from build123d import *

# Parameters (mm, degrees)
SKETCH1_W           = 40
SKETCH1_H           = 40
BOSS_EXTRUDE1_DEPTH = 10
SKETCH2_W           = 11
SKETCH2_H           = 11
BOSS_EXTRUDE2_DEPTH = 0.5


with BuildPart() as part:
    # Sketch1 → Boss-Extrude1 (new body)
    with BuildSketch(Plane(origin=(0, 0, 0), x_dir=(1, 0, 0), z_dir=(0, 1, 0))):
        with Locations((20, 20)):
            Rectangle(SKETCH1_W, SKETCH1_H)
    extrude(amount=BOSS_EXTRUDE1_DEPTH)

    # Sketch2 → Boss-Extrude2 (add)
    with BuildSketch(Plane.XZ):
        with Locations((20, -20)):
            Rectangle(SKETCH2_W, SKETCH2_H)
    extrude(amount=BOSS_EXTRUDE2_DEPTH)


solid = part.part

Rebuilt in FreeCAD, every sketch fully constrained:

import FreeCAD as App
import Part
import Sketcher
Q = App.Units.Quantity

doc = App.newDocument("Part")
body = doc.addObject("PartDesign::Body", "Body")

sketch1 = doc.addObject("Sketcher::SketchObject", "Sketch")
body.addObject(sketch1)
sketch1.AttachmentSupport = (doc.XZ_Plane, [""])
sketch1.MapMode = "FlatFace"
sketch1.addGeometry(Part.LineSegment(App.Vector(0, -40, 0), App.Vector(0, 0, 0)), False)
sketch1.addGeometry(Part.LineSegment(App.Vector(0, 0, 0), App.Vector(40, 0, 0)), False)
sketch1.addGeometry(Part.LineSegment(App.Vector(40, 0, 0), App.Vector(40, -40, 0)), False)
sketch1.addGeometry(Part.LineSegment(App.Vector(40, -40, 0), App.Vector(0, -40, 0)), False)
sketch1.addConstraint(Sketcher.Constraint("Coincident", 0, 2, 1, 1))
sketch1.addConstraint(Sketcher.Constraint("Coincident", 1, 2, 2, 1))
sketch1.addConstraint(Sketcher.Constraint("Coincident", 2, 2, 3, 1))
sketch1.addConstraint(Sketcher.Constraint("Coincident", 3, 2, 0, 1))
sketch1.addConstraint(Sketcher.Constraint("Vertical", 0))
sketch1.addConstraint(Sketcher.Constraint("Horizontal", 1))
sketch1.addConstraint(Sketcher.Constraint("Vertical", 2))
sketch1.addConstraint(Sketcher.Constraint("Horizontal", 3))
sketch1.addConstraint(Sketcher.Constraint("Coincident", 0, 2, -1, 1))
sketch1.addConstraint(Sketcher.Constraint("Equal", 3, 0))
sketch1.addConstraint(Sketcher.Constraint("DistanceX", 1, 1, 1, 2, Q("40 mm")))
pad1 = doc.addObject("PartDesign::Pad", "Pad")
body.addObject(pad1)
pad1.Profile = sketch1
pad1.Length = 10
pad1.Reversed = True

sketch2 = doc.addObject("Sketcher::SketchObject", "Sketch001")
body.addObject(sketch2)
sketch2.AttachmentSupport = (doc.XZ_Plane, [""])
sketch2.MapMode = "FlatFace"
sketch2.addGeometry(Part.LineSegment(App.Vector(14, -14, 0), App.Vector(14, -26, 0)), False)
sketch2.addGeometry(Part.LineSegment(App.Vector(14, -26, 0), App.Vector(26, -26, 0)), False)
sketch2.addGeometry(Part.LineSegment(App.Vector(26, -26, 0), App.Vector(26, -14, 0)), False)
sketch2.addGeometry(Part.LineSegment(App.Vector(26, -14, 0), App.Vector(14, -14, 0)), False)
sketch2.addConstraint(Sketcher.Constraint("Coincident", 0, 2, 1, 1))
sketch2.addConstraint(Sketcher.Constraint("Coincident", 1, 2, 2, 1))
sketch2.addConstraint(Sketcher.Constraint("Coincident", 2, 2, 3, 1))
sketch2.addConstraint(Sketcher.Constraint("Coincident", 3, 2, 0, 1))
sketch2.addConstraint(Sketcher.Constraint("Vertical", 0))
sketch2.addConstraint(Sketcher.Constraint("Horizontal", 1))
sketch2.addConstraint(Sketcher.Constraint("Vertical", 2))
sketch2.addConstraint(Sketcher.Constraint("Horizontal", 3))
sketch2.addConstraint(Sketcher.Constraint("Equal", 3, 0))
sketch2.addConstraint(Sketcher.Constraint("DistanceX", 1, 1, 1, 2, Q("11 mm")))
sketch2.addConstraint(Sketcher.Constraint("DistanceX", -1, 1, 0, 2, Q("14.5 mm")))
sketch2.addConstraint(Sketcher.Constraint("DistanceY", 0, 2, -1, 1, Q("25.5 mm")))
pad2 = doc.addObject("PartDesign::Pad", "Pad001")
body.addObject(pad2)
pad2.Profile = sketch2
pad2.Length = 0.5

doc.recompute()
